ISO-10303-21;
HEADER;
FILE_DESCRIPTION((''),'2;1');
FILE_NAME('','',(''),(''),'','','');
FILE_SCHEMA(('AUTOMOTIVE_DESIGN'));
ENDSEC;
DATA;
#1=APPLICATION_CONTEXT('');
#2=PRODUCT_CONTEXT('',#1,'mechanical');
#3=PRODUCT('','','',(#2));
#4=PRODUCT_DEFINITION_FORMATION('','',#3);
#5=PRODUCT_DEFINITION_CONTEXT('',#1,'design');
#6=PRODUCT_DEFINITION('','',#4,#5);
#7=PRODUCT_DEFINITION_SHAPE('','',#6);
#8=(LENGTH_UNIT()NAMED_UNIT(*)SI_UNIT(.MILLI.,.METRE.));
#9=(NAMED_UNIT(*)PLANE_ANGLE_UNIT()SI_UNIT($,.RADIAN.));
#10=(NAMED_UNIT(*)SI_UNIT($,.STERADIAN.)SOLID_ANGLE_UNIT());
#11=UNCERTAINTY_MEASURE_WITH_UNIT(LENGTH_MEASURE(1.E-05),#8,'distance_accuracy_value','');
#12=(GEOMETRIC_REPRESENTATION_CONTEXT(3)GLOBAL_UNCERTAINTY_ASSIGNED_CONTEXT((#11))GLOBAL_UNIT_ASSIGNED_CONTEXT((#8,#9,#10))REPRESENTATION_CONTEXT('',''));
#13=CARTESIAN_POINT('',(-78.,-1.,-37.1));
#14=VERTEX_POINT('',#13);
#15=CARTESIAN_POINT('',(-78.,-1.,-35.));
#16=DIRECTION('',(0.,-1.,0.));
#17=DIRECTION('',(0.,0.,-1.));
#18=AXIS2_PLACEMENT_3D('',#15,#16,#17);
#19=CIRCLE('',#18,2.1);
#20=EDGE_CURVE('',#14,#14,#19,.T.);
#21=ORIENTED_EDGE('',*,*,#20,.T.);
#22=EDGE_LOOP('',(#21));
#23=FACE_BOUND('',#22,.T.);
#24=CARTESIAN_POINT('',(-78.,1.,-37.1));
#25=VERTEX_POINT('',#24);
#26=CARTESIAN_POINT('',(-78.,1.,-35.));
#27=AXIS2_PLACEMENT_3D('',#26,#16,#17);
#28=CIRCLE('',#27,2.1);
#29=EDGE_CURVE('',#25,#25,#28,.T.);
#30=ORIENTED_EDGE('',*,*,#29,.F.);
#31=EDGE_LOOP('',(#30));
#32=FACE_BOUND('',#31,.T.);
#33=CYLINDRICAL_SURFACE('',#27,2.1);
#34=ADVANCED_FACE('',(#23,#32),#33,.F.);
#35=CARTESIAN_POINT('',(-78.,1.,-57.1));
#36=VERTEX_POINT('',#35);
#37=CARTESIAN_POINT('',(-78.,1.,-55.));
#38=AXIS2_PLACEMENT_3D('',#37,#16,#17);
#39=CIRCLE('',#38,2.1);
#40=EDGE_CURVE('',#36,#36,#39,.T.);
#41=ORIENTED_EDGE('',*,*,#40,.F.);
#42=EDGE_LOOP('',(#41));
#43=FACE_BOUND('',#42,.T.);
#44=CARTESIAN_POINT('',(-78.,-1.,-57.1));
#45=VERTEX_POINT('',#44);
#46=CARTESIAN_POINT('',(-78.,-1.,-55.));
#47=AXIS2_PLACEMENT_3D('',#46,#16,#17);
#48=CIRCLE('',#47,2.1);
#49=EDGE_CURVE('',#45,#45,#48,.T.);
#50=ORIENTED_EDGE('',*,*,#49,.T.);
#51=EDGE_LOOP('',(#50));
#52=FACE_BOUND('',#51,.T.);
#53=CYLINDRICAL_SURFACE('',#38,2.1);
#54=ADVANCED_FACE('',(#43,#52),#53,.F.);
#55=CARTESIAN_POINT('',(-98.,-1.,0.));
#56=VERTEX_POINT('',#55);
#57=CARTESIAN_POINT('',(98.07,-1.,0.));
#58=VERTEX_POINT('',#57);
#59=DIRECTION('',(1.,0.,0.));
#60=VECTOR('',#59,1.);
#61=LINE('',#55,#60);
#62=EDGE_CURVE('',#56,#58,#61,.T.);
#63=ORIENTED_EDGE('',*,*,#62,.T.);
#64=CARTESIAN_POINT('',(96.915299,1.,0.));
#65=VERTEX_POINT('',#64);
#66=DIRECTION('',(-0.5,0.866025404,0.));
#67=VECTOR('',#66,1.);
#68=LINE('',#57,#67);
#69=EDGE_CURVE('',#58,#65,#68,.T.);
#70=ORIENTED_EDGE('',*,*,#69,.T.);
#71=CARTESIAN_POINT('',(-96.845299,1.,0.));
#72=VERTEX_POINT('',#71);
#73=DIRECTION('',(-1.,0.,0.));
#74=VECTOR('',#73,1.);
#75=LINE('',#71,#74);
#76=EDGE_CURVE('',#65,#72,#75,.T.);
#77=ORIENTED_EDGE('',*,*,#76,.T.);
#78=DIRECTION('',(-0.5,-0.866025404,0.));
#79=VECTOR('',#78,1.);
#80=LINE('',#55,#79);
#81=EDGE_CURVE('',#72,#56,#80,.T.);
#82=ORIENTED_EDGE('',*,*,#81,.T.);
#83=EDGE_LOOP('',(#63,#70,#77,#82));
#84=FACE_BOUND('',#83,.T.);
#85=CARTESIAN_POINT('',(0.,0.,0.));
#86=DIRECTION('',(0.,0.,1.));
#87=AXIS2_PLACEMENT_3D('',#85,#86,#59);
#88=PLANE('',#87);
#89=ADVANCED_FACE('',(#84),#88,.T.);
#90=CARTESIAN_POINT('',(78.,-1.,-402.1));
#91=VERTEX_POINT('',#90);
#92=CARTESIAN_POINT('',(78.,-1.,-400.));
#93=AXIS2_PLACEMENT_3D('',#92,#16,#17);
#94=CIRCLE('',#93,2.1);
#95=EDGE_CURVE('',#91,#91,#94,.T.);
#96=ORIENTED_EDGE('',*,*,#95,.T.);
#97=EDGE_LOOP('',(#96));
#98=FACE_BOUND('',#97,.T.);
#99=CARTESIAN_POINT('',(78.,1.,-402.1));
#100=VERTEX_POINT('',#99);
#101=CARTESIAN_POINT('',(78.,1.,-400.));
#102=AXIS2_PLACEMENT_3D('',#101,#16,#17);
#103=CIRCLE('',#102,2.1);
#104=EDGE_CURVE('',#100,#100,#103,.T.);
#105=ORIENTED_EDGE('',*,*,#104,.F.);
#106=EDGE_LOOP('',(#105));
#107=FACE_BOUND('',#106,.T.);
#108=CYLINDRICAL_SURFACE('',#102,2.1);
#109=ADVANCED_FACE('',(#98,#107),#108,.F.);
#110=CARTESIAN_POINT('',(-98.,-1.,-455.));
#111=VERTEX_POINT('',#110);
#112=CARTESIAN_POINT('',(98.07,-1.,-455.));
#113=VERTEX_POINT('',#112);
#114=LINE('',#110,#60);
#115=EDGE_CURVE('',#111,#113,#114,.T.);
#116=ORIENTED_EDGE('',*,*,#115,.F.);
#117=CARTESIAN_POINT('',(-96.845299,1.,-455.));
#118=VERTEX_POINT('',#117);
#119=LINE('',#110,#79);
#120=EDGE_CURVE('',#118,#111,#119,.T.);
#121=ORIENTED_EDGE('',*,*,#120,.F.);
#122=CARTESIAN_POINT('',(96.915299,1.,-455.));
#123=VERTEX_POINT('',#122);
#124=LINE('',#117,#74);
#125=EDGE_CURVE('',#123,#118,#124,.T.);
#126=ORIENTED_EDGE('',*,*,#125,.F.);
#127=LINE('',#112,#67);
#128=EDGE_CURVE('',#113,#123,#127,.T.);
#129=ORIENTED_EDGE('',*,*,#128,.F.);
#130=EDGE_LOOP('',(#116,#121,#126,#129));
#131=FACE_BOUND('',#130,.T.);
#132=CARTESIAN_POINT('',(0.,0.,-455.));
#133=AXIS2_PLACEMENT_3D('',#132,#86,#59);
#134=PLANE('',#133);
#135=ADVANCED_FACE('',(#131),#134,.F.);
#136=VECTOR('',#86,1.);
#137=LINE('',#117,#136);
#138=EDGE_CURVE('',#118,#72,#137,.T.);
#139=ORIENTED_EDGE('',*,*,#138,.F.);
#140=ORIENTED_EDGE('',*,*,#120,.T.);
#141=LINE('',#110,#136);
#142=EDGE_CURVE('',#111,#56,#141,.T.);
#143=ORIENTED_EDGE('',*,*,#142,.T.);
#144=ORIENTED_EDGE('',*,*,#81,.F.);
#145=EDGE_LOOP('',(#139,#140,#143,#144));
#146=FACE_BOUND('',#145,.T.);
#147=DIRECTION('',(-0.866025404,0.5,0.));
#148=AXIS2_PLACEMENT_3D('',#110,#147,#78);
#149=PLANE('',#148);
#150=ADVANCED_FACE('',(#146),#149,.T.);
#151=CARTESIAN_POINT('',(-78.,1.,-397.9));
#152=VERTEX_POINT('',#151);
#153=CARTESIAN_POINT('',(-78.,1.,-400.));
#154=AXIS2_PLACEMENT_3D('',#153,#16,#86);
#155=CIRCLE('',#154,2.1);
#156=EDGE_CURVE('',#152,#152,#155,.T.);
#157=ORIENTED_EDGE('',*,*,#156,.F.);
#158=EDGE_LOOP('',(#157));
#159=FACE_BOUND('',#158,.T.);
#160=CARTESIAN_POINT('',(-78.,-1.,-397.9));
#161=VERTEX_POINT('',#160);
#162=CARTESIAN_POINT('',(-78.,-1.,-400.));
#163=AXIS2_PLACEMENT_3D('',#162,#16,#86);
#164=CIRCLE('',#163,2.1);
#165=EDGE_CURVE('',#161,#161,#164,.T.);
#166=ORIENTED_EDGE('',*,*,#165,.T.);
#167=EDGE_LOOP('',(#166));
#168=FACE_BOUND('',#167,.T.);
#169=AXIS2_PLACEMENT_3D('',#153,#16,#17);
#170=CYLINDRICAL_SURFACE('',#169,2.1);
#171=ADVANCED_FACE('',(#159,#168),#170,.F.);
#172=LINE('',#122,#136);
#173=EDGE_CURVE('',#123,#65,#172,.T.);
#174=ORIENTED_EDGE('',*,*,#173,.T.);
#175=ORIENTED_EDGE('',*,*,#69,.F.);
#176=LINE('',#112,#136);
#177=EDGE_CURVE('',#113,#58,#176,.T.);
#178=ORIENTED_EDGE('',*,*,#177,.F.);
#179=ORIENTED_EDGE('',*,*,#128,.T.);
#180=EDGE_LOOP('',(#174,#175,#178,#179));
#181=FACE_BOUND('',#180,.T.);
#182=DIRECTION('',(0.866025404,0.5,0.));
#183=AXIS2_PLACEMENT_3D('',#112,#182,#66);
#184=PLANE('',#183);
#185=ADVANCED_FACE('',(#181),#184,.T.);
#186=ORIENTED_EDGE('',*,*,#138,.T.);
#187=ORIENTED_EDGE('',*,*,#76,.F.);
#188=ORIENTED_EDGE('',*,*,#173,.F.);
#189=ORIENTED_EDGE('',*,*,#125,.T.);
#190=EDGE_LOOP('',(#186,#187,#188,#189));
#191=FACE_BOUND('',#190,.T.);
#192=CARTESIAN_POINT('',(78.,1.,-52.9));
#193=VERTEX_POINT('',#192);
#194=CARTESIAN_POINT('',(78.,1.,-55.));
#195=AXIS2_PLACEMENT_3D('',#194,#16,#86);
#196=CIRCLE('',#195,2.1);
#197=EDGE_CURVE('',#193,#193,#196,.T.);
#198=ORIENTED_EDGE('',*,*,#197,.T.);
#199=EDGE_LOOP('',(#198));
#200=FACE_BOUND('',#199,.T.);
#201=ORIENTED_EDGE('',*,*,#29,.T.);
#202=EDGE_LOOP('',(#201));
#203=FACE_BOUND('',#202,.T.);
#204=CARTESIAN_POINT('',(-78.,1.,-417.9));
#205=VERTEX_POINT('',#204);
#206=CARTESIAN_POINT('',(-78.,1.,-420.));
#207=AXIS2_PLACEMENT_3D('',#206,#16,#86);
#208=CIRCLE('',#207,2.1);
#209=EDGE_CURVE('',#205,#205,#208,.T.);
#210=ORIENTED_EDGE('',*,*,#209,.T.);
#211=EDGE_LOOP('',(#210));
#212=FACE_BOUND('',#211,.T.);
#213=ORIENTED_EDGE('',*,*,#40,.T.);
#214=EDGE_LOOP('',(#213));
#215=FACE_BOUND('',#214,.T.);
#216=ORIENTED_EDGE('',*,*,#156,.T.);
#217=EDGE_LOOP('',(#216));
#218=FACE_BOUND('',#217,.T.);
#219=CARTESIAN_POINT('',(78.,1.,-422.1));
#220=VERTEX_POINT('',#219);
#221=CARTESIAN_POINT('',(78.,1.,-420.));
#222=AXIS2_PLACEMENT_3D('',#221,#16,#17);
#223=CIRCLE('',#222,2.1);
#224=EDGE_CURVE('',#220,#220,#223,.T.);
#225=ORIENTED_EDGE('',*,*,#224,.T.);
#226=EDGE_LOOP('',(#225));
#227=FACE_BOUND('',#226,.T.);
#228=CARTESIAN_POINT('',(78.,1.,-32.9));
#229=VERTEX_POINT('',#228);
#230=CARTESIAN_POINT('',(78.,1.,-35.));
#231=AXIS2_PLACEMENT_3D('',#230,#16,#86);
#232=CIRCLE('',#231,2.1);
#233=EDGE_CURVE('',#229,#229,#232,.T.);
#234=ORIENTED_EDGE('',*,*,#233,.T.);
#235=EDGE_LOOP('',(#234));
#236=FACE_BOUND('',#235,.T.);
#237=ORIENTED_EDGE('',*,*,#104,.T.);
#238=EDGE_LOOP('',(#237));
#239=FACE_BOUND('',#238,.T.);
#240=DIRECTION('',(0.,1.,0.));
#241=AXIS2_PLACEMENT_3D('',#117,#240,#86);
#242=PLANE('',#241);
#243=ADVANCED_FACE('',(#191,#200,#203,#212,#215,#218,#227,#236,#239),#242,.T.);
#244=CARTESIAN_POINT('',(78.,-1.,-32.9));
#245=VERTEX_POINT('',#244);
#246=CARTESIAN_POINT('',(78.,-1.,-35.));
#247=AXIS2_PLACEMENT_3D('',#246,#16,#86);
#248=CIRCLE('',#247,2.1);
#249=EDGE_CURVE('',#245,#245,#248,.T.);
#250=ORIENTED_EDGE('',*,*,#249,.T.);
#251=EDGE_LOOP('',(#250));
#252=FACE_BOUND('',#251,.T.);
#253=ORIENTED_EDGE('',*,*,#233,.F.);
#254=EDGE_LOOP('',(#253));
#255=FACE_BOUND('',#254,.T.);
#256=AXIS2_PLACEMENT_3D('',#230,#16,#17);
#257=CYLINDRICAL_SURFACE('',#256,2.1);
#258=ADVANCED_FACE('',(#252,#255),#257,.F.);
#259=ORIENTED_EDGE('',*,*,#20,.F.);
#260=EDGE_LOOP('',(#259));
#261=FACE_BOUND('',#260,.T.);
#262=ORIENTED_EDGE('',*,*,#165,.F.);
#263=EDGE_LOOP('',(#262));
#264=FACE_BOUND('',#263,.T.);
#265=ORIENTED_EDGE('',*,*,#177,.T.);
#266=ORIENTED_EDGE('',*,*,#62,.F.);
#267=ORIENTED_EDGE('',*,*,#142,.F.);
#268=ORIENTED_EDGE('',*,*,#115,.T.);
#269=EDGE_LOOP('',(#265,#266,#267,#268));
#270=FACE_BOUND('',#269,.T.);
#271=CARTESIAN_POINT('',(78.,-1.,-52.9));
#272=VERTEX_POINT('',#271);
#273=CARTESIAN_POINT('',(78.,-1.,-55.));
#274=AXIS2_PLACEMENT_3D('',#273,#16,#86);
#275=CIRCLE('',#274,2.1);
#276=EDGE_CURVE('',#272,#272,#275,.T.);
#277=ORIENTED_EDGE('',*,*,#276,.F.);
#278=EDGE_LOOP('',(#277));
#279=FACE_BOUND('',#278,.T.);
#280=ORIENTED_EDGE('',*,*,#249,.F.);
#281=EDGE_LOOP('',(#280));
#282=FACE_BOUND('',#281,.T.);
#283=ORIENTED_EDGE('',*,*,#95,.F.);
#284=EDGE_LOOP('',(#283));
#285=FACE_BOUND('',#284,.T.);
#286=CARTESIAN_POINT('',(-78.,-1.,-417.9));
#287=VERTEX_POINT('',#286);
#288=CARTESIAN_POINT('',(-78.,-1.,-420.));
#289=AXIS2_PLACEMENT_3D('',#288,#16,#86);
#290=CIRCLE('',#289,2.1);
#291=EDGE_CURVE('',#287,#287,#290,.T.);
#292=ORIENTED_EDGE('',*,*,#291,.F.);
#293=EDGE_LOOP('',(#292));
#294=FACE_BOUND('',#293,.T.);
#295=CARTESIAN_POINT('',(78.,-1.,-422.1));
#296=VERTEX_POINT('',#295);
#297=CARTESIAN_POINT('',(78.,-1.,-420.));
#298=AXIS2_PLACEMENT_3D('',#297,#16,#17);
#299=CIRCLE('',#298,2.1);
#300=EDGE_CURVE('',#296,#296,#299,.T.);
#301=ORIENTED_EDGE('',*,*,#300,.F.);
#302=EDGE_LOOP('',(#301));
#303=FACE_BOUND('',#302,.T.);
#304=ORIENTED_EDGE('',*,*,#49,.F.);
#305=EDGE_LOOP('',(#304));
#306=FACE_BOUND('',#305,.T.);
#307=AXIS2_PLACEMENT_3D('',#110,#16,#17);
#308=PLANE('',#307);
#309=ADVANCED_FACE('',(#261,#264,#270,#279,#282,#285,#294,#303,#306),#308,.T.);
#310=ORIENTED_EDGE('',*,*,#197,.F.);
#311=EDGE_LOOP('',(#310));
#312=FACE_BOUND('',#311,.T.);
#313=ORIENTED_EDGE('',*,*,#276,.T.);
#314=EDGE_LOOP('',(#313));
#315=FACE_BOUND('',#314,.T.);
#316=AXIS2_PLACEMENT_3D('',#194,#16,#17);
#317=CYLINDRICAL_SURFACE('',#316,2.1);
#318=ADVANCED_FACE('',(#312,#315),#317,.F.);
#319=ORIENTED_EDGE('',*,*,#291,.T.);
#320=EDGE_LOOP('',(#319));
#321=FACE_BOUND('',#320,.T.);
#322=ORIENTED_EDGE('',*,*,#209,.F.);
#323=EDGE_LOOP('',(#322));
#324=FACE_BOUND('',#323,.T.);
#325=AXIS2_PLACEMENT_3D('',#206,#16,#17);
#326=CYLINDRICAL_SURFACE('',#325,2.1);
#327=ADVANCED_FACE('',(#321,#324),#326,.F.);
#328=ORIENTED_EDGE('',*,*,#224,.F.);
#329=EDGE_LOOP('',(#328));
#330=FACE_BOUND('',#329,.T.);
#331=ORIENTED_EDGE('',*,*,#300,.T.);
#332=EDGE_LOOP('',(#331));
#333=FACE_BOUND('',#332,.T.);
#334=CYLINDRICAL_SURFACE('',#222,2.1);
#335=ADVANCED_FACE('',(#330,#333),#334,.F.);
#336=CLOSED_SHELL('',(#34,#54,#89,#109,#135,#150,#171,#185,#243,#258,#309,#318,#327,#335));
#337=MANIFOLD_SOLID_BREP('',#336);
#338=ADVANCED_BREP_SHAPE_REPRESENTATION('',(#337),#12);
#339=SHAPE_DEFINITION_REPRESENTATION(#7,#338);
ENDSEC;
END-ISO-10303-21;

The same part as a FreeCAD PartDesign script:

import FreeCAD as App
import Part
import Sketcher

V = App.Vector
Q = App.Units.Quantity

doc = App.newDocument("Part")
body = doc.addObject("PartDesign::Body", "Body")

# Sketch on XY plane
sketch1 = body.newObject("Sketcher::SketchObject", "Sketch")
sketch1.AttachmentSupport = (doc.getObject("XY_Plane"), [""])
sketch1.MapMode = "FlatFace"
sketch1.addGeometry(Part.LineSegment(V(-96.845299, 1, 0), V(-98, -1, 0)), False)
sketch1.addGeometry(Part.LineSegment(V(-98, -1, 0), V(98.07, -1, 0)), False)
sketch1.addGeometry(Part.LineSegment(V(98.07, -1, 0), V(96.915299, 1, 0)), False)
sketch1.addGeometry(Part.LineSegment(V(96.915299, 1, 0), V(-96.845299, 1, 0)), False)
sketch1.addConstraint(Sketcher.Constraint("Coincident", 0, 2, 1, 1))
sketch1.addConstraint(Sketcher.Constraint("Coincident", 1, 2, 2, 1))
sketch1.addConstraint(Sketcher.Constraint("Coincident", 2, 2, 3, 1))
sketch1.addConstraint(Sketcher.Constraint("Coincident", 3, 2, 0, 1))
sketch1.addConstraint(Sketcher.Constraint("Horizontal", 1))
sketch1.addConstraint(Sketcher.Constraint("Horizontal", 3))
sketch1.addConstraint(Sketcher.Constraint("Equal", 0, 2))
sketch1.addConstraint(Sketcher.Constraint("Angle", 0, Q("-120 deg")))
sketch1.addConstraint(Sketcher.Constraint("DistanceX", 0, 2, -1, 1, 98.0))
sketch1.addConstraint(Sketcher.Constraint("DistanceY", 0, 2, -1, 1, 1.0))
sketch1.addConstraint(Sketcher.Constraint("DistanceY", -1, 1, 2, 2, 1.0))
sketch1.addConstraint(Sketcher.Constraint("DistanceX", 1, 1, 1, 2, 196.07))
pad1 = body.newObject("PartDesign::Pad", "Pad")
pad1.Profile = sketch1
pad1.Length = 455
pad1.Reversed = True

# Sketch on XZ plane
sketch2 = body.newObject("Sketcher::SketchObject", "Sketch001")
sketch2.AttachmentSupport = (doc.getObject("XZ_Plane"), [""])
sketch2.MapMode = "FlatFace"
sketch2.AttachmentOffset = App.Placement(V(0, 0, 1), App.Rotation())
sketch2.addGeometry(Part.Circle(V(-78, -35, 0), V(0, 0, 1), 2.1), False)
sketch2.addGeometry(Part.Circle(V(-78, -55, 0), V(0, 0, 1), 2.1), False)
sketch2.addGeometry(Part.Circle(V(78, -55, 0), V(0, 0, 1), 2.1), False)
sketch2.addGeometry(Part.Circle(V(78, -35, 0), V(0, 0, 1), 2.1), False)
sketch2.addGeometry(Part.Circle(V(78, -420, 0), V(0, 0, 1), 2.1), False)
sketch2.addGeometry(Part.Circle(V(78, -400, 0), V(0, 0, 1), 2.1), False)
sketch2.addGeometry(Part.Circle(V(-78, -400, 0), V(0, 0, 1), 2.1), False)
sketch2.addGeometry(Part.Circle(V(-78, -420, 0), V(0, 0, 1), 2.1), False)
sketch2.addConstraint(Sketcher.Constraint("Equal", 0, 1))
sketch2.addConstraint(Sketcher.Constraint("Equal", 1, 2))
sketch2.addConstraint(Sketcher.Constraint("Equal", 2, 3))
sketch2.addConstraint(Sketcher.Constraint("Equal", 3, 4))
sketch2.addConstraint(Sketcher.Constraint("Equal", 4, 5))
sketch2.addConstraint(Sketcher.Constraint("Equal", 5, 6))
sketch2.addConstraint(Sketcher.Constraint("Equal", 6, 7))
sketch2.addConstraint(Sketcher.Constraint("Symmetric", 1, 3, 2, 3, -2))
sketch2.addConstraint(Sketcher.Constraint("Symmetric", 0, 3, 3, 3, -2))
sketch2.addConstraint(Sketcher.Constraint("Symmetric", 5, 3, 6, 3, -2))
sketch2.addConstraint(Sketcher.Constraint("Symmetric", 4, 3, 7, 3, -2))
sketch2.addConstraint(Sketcher.Constraint("Vertical", 0, 3, 1, 3))
sketch2.addConstraint(Sketcher.Constraint("Vertical", 3, 3, 4, 3))
sketch2.addConstraint(Sketcher.Constraint("Vertical", 4, 3, 5, 3))
sketch2.addConstraint(Sketcher.Constraint("Diameter", 0, 4.2))
sketch2.addConstraint(Sketcher.Constraint("DistanceX", 0, 3, -1, 1, 78.0))
sketch2.addConstraint(Sketcher.Constraint("DistanceY", 0, 3, -1, 1, 35.0))
sketch2.addConstraint(Sketcher.Constraint("DistanceY", 1, 3, -1, 1, 55.0))
sketch2.addConstraint(Sketcher.Constraint("DistanceY", 4, 3, -1, 1, 420.0))
sketch2.addConstraint(Sketcher.Constraint("DistanceY", 5, 3, -1, 1, 400.0))
pocket1 = body.newObject("PartDesign::Pocket", "Pocket")
pocket1.Profile = sketch2
pocket1.Type = "ThroughAll"

doc.recompute()
